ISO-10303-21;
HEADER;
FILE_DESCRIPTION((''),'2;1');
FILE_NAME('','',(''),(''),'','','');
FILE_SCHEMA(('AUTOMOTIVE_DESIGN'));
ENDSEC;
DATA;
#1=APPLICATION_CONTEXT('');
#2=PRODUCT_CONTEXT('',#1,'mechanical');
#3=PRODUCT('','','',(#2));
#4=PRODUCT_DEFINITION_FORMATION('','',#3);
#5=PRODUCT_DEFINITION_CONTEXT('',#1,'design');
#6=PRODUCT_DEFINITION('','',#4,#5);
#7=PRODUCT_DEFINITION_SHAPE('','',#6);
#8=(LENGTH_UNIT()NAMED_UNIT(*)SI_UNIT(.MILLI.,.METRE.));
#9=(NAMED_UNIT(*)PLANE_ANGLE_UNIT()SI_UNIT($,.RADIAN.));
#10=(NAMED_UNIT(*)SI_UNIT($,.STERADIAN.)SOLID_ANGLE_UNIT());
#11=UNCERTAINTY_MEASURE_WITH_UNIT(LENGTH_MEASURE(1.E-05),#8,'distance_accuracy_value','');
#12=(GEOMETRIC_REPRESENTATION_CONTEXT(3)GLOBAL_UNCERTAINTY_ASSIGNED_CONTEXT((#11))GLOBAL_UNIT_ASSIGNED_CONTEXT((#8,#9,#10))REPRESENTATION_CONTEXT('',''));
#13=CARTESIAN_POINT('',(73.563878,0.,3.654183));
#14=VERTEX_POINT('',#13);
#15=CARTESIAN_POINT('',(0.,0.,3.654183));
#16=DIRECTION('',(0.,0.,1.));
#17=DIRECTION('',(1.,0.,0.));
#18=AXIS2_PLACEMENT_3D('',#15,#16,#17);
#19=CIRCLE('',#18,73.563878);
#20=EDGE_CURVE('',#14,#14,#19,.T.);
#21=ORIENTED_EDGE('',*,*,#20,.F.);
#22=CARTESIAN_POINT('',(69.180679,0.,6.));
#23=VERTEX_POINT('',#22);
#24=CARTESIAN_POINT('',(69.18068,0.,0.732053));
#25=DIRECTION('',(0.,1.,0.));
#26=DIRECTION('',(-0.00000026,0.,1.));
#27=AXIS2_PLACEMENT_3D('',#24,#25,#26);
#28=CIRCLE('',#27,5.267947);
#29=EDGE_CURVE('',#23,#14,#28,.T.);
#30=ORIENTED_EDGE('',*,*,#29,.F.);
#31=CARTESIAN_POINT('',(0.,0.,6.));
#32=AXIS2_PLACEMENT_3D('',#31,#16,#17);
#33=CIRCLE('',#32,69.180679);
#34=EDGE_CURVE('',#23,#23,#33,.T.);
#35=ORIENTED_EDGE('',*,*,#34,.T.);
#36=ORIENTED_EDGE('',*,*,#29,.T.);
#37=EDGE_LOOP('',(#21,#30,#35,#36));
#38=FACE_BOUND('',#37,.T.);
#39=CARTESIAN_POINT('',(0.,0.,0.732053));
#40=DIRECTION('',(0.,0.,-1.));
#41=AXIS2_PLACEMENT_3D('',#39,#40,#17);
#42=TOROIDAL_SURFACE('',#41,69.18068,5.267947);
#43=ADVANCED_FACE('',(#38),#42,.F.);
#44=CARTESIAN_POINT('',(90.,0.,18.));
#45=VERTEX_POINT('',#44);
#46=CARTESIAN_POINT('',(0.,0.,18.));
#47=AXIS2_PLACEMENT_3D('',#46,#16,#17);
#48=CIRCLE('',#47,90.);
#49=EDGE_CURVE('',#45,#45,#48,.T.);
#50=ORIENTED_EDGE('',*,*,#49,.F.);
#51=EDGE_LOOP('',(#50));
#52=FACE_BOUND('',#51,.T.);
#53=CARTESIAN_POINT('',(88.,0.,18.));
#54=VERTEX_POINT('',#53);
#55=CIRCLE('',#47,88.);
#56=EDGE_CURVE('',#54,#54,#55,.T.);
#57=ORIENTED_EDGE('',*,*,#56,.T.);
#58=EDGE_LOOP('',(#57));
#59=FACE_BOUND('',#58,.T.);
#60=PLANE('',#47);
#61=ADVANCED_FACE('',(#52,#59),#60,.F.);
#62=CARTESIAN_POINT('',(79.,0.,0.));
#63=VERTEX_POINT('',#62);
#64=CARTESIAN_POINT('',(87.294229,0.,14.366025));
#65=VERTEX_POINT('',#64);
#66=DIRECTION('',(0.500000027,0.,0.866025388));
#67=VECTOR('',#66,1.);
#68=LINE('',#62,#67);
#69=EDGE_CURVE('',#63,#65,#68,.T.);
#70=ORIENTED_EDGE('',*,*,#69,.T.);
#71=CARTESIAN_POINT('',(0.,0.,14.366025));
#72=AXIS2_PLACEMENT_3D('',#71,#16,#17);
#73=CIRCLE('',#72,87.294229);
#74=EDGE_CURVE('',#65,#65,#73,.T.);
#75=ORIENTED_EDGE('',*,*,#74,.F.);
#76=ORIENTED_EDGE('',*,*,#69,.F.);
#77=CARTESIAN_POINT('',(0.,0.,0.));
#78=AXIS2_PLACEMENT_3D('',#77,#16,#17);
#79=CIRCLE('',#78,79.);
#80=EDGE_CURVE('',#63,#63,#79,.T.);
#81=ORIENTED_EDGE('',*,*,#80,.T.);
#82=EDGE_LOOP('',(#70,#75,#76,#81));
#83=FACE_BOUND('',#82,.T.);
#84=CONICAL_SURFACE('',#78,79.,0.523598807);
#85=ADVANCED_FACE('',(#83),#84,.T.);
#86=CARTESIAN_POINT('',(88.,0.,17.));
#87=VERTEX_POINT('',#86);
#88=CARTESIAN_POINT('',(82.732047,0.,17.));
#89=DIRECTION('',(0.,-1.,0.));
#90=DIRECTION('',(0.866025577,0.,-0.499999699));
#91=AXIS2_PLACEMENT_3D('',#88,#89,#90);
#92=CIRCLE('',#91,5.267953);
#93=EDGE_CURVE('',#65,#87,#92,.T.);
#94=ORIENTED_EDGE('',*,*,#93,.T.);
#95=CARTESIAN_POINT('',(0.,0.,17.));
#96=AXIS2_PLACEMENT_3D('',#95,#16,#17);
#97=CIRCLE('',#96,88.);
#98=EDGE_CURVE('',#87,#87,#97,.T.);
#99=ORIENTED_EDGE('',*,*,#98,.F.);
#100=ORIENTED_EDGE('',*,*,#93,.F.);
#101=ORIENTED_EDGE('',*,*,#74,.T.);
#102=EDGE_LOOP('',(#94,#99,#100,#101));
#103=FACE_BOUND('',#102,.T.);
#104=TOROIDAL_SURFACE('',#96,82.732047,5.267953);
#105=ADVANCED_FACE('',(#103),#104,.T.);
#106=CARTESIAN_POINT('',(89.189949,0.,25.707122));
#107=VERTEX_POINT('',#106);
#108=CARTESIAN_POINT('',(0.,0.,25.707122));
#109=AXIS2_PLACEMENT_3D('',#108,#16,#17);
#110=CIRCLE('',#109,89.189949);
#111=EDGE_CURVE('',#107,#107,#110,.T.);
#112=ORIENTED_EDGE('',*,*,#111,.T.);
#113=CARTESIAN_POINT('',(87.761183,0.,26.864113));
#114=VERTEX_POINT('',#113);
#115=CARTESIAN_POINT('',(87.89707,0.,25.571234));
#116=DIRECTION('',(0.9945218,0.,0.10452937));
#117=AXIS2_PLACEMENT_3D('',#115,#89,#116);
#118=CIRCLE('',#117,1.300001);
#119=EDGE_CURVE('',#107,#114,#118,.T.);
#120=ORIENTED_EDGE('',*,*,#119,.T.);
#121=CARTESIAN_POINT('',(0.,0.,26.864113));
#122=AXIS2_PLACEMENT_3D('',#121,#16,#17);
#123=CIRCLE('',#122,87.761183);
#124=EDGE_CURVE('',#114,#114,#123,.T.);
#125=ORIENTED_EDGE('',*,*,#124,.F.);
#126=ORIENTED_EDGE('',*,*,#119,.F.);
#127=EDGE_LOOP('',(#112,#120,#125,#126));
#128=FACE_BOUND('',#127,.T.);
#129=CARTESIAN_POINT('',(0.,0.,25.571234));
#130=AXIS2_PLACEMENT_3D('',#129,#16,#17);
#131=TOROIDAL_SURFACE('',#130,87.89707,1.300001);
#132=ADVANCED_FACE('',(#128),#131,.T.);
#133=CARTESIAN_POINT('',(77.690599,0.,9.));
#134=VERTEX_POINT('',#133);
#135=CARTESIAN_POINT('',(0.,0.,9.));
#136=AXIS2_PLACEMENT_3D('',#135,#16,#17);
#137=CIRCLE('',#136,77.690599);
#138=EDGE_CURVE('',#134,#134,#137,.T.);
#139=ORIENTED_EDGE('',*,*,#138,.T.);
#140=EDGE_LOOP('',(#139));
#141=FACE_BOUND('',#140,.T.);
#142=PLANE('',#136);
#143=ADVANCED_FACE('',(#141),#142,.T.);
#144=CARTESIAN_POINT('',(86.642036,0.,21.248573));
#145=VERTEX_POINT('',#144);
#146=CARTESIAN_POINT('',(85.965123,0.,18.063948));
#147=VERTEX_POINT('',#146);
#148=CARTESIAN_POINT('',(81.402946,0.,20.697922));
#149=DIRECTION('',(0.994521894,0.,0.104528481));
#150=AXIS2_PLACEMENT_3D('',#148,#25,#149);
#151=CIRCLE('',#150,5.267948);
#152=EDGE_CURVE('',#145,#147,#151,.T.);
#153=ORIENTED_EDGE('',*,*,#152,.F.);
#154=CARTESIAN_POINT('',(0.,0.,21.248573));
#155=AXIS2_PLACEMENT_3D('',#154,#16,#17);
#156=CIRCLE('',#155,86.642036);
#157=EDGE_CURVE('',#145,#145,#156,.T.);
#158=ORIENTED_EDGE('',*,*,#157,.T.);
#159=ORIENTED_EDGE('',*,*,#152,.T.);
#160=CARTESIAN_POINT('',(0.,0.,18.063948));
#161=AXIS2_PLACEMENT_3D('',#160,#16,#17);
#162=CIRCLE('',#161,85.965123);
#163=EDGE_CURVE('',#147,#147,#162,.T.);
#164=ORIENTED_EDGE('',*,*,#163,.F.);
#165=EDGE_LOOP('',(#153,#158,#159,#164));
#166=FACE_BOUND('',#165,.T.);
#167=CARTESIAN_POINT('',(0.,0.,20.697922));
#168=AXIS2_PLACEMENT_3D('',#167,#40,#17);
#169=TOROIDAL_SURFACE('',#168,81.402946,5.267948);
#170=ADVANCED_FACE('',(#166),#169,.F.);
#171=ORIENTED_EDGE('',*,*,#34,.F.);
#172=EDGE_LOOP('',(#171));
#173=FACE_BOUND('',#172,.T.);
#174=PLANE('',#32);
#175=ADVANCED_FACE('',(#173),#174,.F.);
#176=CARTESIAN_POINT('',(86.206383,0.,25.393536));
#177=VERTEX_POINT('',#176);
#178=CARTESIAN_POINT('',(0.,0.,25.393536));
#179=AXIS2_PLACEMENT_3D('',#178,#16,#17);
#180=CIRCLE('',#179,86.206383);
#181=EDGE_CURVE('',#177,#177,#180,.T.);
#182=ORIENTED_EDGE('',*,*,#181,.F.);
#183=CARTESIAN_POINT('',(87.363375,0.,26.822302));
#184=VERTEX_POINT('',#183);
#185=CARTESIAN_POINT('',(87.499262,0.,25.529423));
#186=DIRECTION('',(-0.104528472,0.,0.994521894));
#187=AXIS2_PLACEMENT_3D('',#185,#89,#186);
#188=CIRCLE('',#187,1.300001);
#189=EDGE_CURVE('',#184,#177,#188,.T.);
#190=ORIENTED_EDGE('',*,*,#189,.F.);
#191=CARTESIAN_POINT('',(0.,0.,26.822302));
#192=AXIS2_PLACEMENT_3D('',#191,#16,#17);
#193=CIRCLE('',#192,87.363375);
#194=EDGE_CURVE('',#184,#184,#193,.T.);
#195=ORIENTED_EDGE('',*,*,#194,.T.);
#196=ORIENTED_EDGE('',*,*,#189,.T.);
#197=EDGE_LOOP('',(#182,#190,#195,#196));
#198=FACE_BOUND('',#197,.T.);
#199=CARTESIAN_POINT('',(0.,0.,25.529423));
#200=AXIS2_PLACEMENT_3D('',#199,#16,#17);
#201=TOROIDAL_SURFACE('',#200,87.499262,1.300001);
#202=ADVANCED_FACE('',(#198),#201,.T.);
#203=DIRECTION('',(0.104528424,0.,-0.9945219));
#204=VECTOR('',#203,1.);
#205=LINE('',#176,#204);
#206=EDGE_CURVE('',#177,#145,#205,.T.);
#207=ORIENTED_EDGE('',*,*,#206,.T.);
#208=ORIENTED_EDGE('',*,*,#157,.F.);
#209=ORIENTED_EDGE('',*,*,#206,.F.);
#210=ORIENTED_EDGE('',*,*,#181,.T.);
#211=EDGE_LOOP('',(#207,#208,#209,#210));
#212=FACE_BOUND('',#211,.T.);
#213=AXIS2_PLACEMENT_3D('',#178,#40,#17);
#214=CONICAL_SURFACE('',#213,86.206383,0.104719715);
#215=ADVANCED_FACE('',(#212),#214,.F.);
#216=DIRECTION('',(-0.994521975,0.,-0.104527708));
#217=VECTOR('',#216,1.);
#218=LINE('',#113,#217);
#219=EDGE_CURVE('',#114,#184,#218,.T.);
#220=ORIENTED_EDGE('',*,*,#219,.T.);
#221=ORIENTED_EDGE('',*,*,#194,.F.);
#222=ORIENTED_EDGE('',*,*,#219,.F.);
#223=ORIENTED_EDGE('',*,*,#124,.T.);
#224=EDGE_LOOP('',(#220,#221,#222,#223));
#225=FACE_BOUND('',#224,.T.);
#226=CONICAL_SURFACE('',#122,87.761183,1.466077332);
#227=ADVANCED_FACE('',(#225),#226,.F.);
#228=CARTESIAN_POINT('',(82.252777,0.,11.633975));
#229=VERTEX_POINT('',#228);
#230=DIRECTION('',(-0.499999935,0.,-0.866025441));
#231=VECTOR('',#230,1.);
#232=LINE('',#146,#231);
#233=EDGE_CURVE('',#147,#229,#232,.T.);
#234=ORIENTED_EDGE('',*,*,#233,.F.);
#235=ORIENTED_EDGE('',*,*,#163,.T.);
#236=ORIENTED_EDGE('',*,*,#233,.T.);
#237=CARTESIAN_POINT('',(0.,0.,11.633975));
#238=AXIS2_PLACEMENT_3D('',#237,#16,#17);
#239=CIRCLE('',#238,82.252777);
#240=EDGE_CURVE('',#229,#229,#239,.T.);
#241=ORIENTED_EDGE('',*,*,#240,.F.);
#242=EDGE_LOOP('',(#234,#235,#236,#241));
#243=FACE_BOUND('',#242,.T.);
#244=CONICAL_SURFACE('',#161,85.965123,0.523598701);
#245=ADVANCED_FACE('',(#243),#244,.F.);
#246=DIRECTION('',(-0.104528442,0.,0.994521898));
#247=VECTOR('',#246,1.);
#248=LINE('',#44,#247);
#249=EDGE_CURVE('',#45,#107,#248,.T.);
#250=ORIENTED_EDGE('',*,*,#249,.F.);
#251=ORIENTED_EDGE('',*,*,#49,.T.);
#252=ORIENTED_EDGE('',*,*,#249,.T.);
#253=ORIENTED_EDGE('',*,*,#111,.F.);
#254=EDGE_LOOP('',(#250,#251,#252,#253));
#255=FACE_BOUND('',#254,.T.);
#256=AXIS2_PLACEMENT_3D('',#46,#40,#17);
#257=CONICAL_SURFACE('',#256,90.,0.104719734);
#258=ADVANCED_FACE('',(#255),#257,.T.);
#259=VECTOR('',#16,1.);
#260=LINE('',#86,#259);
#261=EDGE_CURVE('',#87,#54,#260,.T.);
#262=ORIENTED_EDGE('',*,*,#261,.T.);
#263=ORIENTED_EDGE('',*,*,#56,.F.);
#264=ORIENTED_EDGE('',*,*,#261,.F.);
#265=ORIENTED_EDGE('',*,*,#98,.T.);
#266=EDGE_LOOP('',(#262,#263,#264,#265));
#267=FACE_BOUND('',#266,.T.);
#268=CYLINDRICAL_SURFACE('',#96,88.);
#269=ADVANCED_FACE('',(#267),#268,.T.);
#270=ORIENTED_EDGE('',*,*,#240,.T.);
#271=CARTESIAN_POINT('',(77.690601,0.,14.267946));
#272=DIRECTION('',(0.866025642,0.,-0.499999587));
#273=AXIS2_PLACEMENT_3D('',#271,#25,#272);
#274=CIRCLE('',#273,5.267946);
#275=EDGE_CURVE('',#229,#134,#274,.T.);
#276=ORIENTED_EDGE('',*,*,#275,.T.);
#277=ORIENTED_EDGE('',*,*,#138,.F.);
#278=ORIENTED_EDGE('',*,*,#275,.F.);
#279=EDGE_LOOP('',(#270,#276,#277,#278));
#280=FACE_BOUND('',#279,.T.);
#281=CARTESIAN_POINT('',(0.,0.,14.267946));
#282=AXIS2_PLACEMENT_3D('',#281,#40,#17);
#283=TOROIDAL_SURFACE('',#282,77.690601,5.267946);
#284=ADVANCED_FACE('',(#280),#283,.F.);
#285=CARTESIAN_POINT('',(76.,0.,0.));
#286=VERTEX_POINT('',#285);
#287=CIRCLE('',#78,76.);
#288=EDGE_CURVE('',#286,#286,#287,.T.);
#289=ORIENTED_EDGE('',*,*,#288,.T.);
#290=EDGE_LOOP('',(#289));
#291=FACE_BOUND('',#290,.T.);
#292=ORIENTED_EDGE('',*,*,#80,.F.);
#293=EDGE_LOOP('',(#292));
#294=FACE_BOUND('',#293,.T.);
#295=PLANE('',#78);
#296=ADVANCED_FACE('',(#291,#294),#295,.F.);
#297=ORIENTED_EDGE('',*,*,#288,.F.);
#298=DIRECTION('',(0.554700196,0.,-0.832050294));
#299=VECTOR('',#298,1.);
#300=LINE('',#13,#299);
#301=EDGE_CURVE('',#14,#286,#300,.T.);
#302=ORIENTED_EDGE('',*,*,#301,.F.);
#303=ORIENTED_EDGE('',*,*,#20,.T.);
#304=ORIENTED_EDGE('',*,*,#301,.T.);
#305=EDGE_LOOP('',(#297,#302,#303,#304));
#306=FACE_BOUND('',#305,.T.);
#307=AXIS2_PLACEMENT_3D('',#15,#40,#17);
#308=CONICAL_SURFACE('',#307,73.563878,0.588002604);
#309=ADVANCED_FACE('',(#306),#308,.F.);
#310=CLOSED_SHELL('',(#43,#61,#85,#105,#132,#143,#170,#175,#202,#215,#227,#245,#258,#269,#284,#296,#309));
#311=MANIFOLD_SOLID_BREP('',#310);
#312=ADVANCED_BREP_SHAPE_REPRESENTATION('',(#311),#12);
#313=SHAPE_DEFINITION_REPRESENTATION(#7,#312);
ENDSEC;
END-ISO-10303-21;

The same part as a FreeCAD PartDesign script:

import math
import FreeCAD as App
import Part
import Sketcher
from FreeCAD import Vector
Q = App.Units.Quantity

doc = App.newDocument("Part")
body = doc.addObject("PartDesign::Body", "Body")

# Sketch on XZ plane
sketch1 = body.newObject("Sketcher::SketchObject", "Sketch")
sketch1.AttachmentSupport = (doc.getObject("XZ_Plane"), [""])
sketch1.MapMode = "FlatFace"
sketch1.addGeometry([
    Part.LineSegment(Vector(0, 9, 0), Vector(0, 6, 0)),  # 0
    Part.LineSegment(Vector(0, 6, 0), Vector(69.18, 6, 0)),  # 1
    Part.ArcOfCircle(Part.Circle(Vector(69.18, 0.73, 0), Vector(0, 0, 1), 5.27), math.radians(34), math.radians(90)),  # 2
    Part.LineSegment(Vector(73.56, 3.65, 0), Vector(76, 0, 0)),  # 3
    Part.LineSegment(Vector(76, 0, 0), Vector(79, 0, 0)),  # 4
    Part.LineSegment(Vector(79, 0, 0), Vector(87.29, 14.37, 0)),  # 5
    Part.ArcOfCircle(Part.Circle(Vector(82.73, 17, 0), Vector(0, 0, 1), 5.27), math.radians(-30), math.radians(0)),  # 6
    Part.LineSegment(Vector(88, 17, 0), Vector(88, 18, 0)),  # 7
    Part.LineSegment(Vector(88, 18, 0), Vector(90, 18, 0)),  # 8
    Part.LineSegment(Vector(90, 18, 0), Vector(89.19, 25.71, 0)),  # 9
    Part.ArcOfCircle(Part.Circle(Vector(87.9, 25.57, 0), Vector(0, 0, 1), 1.3), math.radians(6), math.radians(96)),  # 10
    Part.LineSegment(Vector(87.76, 26.86, 0), Vector(87.36, 26.82, 0)),  # 11
    Part.ArcOfCircle(Part.Circle(Vector(87.5, 25.53, 0), Vector(0, 0, 1), 1.3), math.radians(96), math.radians(186)),  # 12
    Part.LineSegment(Vector(86.21, 25.39, 0), Vector(86.64, 21.25, 0)),  # 13
    Part.ArcOfCircle(Part.Circle(Vector(81.4, 20.7, 0), Vector(0, 0, 1), 5.27), math.radians(-30), math.radians(6)),  # 14
    Part.LineSegment(Vector(85.97, 18.06, 0), Vector(82.25, 11.63, 0)),  # 15
    Part.ArcOfCircle(Part.Circle(Vector(77.69, 14.27, 0), Vector(0, 0, 1), 5.27), math.radians(-90), math.radians(-30)),  # 16
    Part.LineSegment(Vector(77.69, 9, 0), Vector(0, 9, 0)),  # 17
], False)
sketch1.addConstraint([
    Sketcher.Constraint("Coincident", 0, 2, 1, 1),
    Sketcher.Constraint("Tangent", 1, 2, 2, 2),
    Sketcher.Constraint("Tangent", 2, 1, 3, 1),
    Sketcher.Constraint("Coincident", 3, 2, 4, 1),
    Sketcher.Constraint("Coincident", 4, 2, 5, 1),
    Sketcher.Constraint("Tangent", 5, 2, 6, 1),
    Sketcher.Constraint("Tangent", 6, 2, 7, 1),
    Sketcher.Constraint("Coincident", 7, 2, 8, 1),
    Sketcher.Constraint("Coincident", 8, 2, 9, 1),
    Sketcher.Constraint("Tangent", 9, 2, 10, 1),
    Sketcher.Constraint("Tangent", 10, 2, 11, 1),
    Sketcher.Constraint("Tangent", 11, 2, 12, 1),
    Sketcher.Constraint("Tangent", 12, 2, 13, 1),
    Sketcher.Constraint("Tangent", 13, 2, 14, 2),
    Sketcher.Constraint("Tangent", 14, 1, 15, 1),
    Sketcher.Constraint("Tangent", 15, 2, 16, 2),
    Sketcher.Constraint("Tangent", 16, 1, 17, 1),
    Sketcher.Constraint("Coincident", 17, 2, 0, 1),
    Sketcher.Constraint("Vertical", 0),
    Sketcher.Constraint("Horizontal", 1),
    Sketcher.Constraint("Horizontal", 4),
    Sketcher.Constraint("Vertical", 7),
    Sketcher.Constraint("Horizontal", 8),
    Sketcher.Constraint("Horizontal", 17),
    Sketcher.Constraint("Equal", 10, 12),
    Sketcher.Constraint("Equal", 2, 14),
    Sketcher.Constraint("Equal", 2, 16),
    Sketcher.Constraint("PointOnObject", 0, 2, -2),
    Sketcher.Constraint("PointOnObject", 3, 2, -1),
    Sketcher.Constraint("Perpendicular", 9, 11),
    Sketcher.Constraint("Perpendicular", 11, 13),
    Sketcher.Constraint("Parallel", 5, 15),
    Sketcher.Constraint("Equal", 4, 0),
    Sketcher.Constraint("Radius", 10, 1.300001),
    Sketcher.Constraint("DistanceX", 4, 1, 4, 2, 3.0),
    Sketcher.Constraint("DistanceX", 8, 1, 8, 2, 2.0),
    Sketcher.Constraint("DistanceY", 7, 1, 7, 2, 1.0),
    Sketcher.Constraint("Angle", 5, Q("59.999998 deg")),
    Sketcher.Constraint("Angle", 9, Q("95.999999 deg")),
    Sketcher.Constraint("DistanceY", -1, 1, 6, 3, 17.0),
    Sketcher.Constraint("DistanceY", -1, 1, 0, 2, 6.0),
    Sketcher.Constraint("DistanceX", -1, 1, 3, 2, 76.0),
    Sketcher.Constraint("DistanceX", -1, 1, 6, 2, 88.0),
    Sketcher.Constraint("Distance", 11, 0.399999),
    Sketcher.Constraint("Radius", 14, 5.267948),
    Sketcher.Constraint("DistanceX", 17, 2, 17, 1, 77.690599),
    Sketcher.Constraint("DistanceX", 1, 1, 1, 2, 69.180679),
    Sketcher.Constraint("DistanceY", 14, 3, 12, 3, 4.831501),
])
revolution = body.newObject("PartDesign::Revolution", "Revolution")
revolution.Profile = sketch1
revolution.ReferenceAxis = (sketch1, ["V_Axis"])
revolution.Angle = 360

doc.recompute()
